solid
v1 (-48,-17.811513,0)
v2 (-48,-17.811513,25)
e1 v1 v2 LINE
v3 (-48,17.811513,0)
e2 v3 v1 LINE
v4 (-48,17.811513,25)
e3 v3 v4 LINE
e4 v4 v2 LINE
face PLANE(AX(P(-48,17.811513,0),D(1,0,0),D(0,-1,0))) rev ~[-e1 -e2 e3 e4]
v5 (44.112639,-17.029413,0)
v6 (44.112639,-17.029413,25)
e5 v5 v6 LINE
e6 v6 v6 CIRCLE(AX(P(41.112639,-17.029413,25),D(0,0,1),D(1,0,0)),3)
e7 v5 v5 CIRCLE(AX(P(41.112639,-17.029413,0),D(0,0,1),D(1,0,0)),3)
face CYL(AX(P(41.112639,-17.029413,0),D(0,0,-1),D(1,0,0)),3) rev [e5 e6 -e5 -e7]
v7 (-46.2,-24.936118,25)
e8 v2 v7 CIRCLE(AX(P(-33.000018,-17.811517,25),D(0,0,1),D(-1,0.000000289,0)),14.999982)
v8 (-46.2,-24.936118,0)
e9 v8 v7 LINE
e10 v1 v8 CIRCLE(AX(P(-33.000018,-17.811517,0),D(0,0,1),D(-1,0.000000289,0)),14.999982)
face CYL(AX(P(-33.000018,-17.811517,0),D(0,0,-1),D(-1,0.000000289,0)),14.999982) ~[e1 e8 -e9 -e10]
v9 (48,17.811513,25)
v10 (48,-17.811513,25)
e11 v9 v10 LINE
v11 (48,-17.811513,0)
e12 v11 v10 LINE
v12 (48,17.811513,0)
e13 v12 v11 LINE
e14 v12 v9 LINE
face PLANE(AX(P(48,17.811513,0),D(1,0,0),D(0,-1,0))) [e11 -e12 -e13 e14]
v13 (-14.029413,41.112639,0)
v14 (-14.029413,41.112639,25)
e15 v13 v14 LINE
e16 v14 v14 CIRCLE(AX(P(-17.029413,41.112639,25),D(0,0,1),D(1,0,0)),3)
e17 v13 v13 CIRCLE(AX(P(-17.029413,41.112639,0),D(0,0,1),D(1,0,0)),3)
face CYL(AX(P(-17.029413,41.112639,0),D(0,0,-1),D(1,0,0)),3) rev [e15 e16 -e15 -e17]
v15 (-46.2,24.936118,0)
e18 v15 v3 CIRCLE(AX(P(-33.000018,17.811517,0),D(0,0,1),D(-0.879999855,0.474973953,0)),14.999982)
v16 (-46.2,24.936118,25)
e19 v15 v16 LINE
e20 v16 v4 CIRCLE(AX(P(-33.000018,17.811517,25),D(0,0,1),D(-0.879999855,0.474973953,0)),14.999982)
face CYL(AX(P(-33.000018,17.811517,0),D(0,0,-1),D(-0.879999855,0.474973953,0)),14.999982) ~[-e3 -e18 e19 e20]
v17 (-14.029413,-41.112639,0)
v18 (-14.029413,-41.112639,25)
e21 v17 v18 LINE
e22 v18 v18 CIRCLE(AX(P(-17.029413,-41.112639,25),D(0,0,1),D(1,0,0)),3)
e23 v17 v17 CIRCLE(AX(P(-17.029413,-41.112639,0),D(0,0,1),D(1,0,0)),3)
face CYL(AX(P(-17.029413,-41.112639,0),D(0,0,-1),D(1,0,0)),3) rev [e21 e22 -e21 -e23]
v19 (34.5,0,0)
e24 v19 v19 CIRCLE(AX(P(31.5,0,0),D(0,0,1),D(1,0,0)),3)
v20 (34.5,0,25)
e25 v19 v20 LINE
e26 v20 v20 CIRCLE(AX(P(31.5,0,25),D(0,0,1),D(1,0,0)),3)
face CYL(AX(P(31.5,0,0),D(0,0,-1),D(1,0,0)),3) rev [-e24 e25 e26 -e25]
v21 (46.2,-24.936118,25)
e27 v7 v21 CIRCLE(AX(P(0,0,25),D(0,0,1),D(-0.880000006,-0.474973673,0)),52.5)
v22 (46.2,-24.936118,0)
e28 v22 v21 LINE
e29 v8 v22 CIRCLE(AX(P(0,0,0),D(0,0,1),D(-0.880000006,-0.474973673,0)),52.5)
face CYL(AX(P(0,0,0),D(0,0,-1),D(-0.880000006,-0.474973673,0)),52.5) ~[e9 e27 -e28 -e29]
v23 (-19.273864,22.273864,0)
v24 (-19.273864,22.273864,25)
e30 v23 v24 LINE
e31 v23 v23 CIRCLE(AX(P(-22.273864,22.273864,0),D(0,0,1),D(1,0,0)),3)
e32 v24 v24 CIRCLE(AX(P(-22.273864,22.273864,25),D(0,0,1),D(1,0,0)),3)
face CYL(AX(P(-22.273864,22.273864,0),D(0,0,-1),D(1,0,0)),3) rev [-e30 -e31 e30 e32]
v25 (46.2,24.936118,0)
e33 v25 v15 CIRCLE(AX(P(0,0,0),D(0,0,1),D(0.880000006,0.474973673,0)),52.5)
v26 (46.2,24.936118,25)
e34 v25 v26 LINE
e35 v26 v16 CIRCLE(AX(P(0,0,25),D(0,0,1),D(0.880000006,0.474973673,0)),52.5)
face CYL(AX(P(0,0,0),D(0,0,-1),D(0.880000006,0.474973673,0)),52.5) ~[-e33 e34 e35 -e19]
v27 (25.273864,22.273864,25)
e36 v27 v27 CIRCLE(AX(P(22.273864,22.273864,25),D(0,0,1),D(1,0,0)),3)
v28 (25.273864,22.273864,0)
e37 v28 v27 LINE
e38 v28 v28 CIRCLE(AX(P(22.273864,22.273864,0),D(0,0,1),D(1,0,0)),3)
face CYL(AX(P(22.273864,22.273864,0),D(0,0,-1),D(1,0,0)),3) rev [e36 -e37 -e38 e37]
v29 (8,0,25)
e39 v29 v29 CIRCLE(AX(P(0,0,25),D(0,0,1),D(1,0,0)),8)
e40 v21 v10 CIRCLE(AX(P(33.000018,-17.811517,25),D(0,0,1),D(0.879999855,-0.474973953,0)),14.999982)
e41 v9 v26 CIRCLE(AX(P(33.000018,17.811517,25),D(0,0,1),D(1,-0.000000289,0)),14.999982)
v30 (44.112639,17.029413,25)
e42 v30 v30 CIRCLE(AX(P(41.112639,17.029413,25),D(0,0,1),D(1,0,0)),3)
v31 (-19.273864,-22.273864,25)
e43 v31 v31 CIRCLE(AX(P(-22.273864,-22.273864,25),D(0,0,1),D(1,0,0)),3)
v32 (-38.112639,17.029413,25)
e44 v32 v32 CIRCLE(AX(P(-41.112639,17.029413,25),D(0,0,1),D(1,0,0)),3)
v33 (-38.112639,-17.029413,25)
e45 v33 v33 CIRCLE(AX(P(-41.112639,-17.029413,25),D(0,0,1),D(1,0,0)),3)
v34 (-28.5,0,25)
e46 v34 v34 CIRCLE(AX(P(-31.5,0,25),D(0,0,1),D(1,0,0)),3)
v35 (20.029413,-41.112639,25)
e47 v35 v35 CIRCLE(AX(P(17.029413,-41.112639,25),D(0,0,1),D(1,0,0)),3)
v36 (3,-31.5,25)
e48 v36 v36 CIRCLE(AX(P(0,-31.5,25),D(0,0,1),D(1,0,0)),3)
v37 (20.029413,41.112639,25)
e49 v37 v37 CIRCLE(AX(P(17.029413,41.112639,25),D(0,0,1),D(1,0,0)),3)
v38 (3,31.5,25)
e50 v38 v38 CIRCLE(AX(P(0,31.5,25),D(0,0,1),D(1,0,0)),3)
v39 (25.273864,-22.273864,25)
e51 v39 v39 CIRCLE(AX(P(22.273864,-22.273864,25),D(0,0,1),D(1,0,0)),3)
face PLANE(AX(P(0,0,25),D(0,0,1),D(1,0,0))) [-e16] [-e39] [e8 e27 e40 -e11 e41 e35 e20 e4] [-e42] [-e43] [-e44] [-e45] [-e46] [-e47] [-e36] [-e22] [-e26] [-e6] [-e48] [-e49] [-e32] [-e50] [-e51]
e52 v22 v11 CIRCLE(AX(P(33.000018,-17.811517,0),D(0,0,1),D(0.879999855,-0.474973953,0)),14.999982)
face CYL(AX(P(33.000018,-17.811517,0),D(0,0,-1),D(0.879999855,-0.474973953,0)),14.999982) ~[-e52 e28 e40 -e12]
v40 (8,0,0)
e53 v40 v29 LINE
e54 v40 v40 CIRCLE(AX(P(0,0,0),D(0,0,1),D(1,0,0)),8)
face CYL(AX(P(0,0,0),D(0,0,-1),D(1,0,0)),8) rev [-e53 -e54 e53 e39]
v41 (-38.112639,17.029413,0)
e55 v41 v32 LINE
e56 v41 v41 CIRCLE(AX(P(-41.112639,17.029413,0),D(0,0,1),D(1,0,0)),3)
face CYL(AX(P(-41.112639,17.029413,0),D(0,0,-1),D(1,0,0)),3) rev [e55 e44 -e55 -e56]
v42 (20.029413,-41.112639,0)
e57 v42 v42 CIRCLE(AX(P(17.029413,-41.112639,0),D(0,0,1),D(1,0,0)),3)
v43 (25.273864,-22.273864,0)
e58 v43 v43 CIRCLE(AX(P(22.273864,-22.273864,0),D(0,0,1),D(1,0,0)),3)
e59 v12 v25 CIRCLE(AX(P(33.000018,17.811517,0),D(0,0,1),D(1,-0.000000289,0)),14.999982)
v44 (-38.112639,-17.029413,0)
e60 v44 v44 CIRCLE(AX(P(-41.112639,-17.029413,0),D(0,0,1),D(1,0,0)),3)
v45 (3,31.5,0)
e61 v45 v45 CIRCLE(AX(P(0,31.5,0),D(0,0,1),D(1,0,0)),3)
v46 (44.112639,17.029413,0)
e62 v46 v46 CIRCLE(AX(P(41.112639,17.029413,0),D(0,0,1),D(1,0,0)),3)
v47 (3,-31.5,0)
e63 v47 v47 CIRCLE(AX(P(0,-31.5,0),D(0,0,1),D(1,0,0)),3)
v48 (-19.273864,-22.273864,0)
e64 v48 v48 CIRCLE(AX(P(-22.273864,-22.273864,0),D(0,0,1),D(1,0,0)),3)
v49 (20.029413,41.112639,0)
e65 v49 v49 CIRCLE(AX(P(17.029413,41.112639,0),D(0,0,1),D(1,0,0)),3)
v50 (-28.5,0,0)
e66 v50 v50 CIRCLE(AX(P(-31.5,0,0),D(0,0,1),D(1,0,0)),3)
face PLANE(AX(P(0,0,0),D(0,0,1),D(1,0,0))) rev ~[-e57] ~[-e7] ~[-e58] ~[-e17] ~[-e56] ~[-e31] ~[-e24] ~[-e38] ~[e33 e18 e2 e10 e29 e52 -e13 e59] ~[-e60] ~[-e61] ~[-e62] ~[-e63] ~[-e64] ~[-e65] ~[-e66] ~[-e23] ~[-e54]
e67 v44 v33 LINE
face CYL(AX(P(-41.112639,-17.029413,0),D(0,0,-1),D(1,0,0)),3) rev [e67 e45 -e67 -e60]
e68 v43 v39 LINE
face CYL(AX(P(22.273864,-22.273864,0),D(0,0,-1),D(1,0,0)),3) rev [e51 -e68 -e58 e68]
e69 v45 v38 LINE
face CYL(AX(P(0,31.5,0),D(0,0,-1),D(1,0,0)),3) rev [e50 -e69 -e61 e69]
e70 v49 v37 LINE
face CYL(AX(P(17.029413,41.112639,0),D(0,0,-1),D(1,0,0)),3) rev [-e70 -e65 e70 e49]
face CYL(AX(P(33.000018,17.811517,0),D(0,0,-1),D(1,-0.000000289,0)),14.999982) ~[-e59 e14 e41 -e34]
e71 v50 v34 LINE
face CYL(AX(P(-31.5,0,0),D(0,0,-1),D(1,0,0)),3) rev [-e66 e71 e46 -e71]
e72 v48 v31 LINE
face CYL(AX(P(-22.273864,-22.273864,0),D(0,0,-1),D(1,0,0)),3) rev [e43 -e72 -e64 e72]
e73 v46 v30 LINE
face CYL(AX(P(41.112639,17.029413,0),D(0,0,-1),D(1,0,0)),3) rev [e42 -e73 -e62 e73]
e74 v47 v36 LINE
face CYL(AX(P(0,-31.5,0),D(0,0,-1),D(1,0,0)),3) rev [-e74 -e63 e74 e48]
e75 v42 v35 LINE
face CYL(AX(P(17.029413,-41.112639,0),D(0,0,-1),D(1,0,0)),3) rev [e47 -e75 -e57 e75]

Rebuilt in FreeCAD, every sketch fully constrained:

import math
import FreeCAD as App
import Part
import Sketcher
from FreeCAD import Vector

doc = App.newDocument("Part")
body = doc.addObject("PartDesign::Body", "Body")

sketch1 = body.newObject("Sketcher::SketchObject", "Sketch")
sketch1.AttachmentSupport = (doc.getObject("XY_Plane"), [""])
sketch1.MapMode = "FlatFace"
sketch1.addGeometry(Part.ArcOfCircle(Part.Circle(Vector(0, 0, 0), Vector(0, 0, 1), 52.5), math.radians(-152), math.radians(-28)), False)
sketch1.addGeometry(Part.ArcOfCircle(Part.Circle(Vector(33, -17.8, 0), Vector(0, 0, 1), 15), math.radians(-28), math.radians(0)), False)
sketch1.addGeometry(Part.LineSegment(Vector(48, -17.8, 0), Vector(48, 17.8, 0)), False)
sketch1.addGeometry(Part.ArcOfCircle(Part.Circle(Vector(33, 17.8, 0), Vector(0, 0, 1), 15), math.radians(0), math.radians(28)), False)
sketch1.addGeometry(Part.ArcOfCircle(Part.Circle(Vector(0, 0, 0), Vector(0, 0, 1), 52.5), math.radians(28), math.radians(152)), False)
sketch1.addGeometry(Part.ArcOfCircle(Part.Circle(Vector(-33, 17.8, 0), Vector(0, 0, 1), 15), math.radians(152), math.radians(180)), False)
sketch1.addGeometry(Part.LineSegment(Vector(-48, 17.8, 0), Vector(-48, -17.8, 0)), False)
sketch1.addGeometry(Part.ArcOfCircle(Part.Circle(Vector(-33, -17.8, 0), Vector(0, 0, 1), 15), math.radians(180), math.radians(208)), False)
sketch1.addGeometry(Part.Circle(Vector(-22.3, -22.3, 0), Vector(0, 0, 1), 3), False)
sketch1.addGeometry(Part.Circle(Vector(-17, -41.1, 0), Vector(0, 0, 1), 3), False)
sketch1.addGeometry(Part.Circle(Vector(-41.1, -17, 0), Vector(0, 0, 1), 3), False)
sketch1.addGeometry(Part.Circle(Vector(17, -41.1, 0), Vector(0, 0, 1), 3), False)
sketch1.addGeometry(Part.Circle(Vector(0, -31.5, 0), Vector(0, 0, 1), 3), False)
sketch1.addGeometry(Part.Circle(Vector(22.3, -22.3, 0), Vector(0, 0, 1), 3), False)
sketch1.addGeometry(Part.Circle(Vector(41.1, -17, 0), Vector(0, 0, 1), 3), False)
sketch1.addGeometry(Part.Circle(Vector(-31.5, 0, 0), Vector(0, 0, 1), 3), False)
sketch1.addGeometry(Part.Circle(Vector(-41.1, 17, 0), Vector(0, 0, 1), 3), False)
sketch1.addGeometry(Part.Circle(Vector(-22.3, 22.3, 0), Vector(0, 0, 1), 3), False)
sketch1.addGeometry(Part.Circle(Vector(-17, 41.1, 0), Vector(0, 0, 1), 3), False)
sketch1.addGeometry(Part.Circle(Vector(0, 0, 0), Vector(0, 0, 1), 8), False)
sketch1.addGeometry(Part.Circle(Vector(31.5, 0, 0), Vector(0, 0, 1), 3), False)
sketch1.addGeometry(Part.Circle(Vector(41.1, 17, 0), Vector(0, 0, 1), 3), False)
sketch1.addGeometry(Part.Circle(Vector(0, 31.5, 0), Vector(0, 0, 1), 3), False)
sketch1.addGeometry(Part.Circle(Vector(17, 41.1, 0), Vector(0, 0, 1), 3), False)
sketch1.addGeometry(Part.Circle(Vector(22.3, 22.3, 0), Vector(0, 0, 1), 3), False)
sketch1.addConstraint(Sketcher.Constraint("Tangent", 0, 2, 1, 1))
sketch1.addConstraint(Sketcher.Constraint("Tangent", 1, 2, 2, 1))
sketch1.addConstraint(Sketcher.Constraint("Tangent", 2, 2, 3, 1))
sketch1.addConstraint(Sketcher.Constraint("Tangent", 3, 2, 4, 1))
sketch1.addConstraint(Sketcher.Constraint("Tangent", 4, 2, 5, 1))
sketch1.addConstraint(Sketcher.Constraint("Tangent", 5, 2, 6, 1))
sketch1.addConstraint(Sketcher.Constraint("Tangent", 6, 2, 7, 1))
sketch1.addConstraint(Sketcher.Constraint("Tangent", 7, 2, 0, 1))
sketch1.addConstraint(Sketcher.Constraint("Vertical", 2))
sketch1.addConstraint(Sketcher.Constraint("Vertical", 6))
sketch1.addConstraint(Sketcher.Constraint("Coincident", 0, 3, -1, 1))
sketch1.addConstraint(Sketcher.Constraint("Coincident", 4, 3, -1, 1))
sketch1.addConstraint(Sketcher.Constraint("Coincident", 19, 3, -1, 1))
sketch1.addConstraint(Sketcher.Constraint("Equal", 1, 3))
sketch1.addConstraint(Sketcher.Constraint("Equal", 0, 4))
sketch1.addConstraint(Sketcher.Constraint("Equal", 3, 5))
sketch1.addConstraint(Sketcher.Constraint("Equal", 5, 7))
sketch1.addConstraint(Sketcher.Constraint("Equal", 8, 9))
sketch1.addConstraint(Sketcher.Constraint("Equal", 9, 10))
sketch1.addConstraint(Sketcher.Constraint("Equal", 10, 11))
sketch1.addConstraint(Sketcher.Constraint("Equal", 11, 12))
sketch1.addConstraint(Sketcher.Constraint("Equal", 12, 13))
sketch1.addConstraint(Sketcher.Constraint("Equal", 13, 14))
sketch1.addConstraint(Sketcher.Constraint("Equal", 14, 15))
sketch1.addConstraint(Sketcher.Constraint("Equal", 15, 16))
sketch1.addConstraint(Sketcher.Constraint("Equal", 16, 17))
sketch1.addConstraint(Sketcher.Constraint("Equal", 17, 18))
sketch1.addConstraint(Sketcher.Constraint("Equal", 18, 20))
sketch1.addConstraint(Sketcher.Constraint("Equal", 20, 21))
sketch1.addConstraint(Sketcher.Constraint("Equal", 21, 22))
sketch1.addConstraint(Sketcher.Constraint("Equal", 22, 23))
sketch1.addConstraint(Sketcher.Constraint("Equal", 23, 24))
sketch1.addConstraint(Sketcher.Constraint("Symmetric", 14, 3, 16, 3, -1, 1))
sketch1.addConstraint(Sketcher.Constraint("Symmetric", 13, 3, 17, 3, -1, 1))
sketch1.addConstraint(Sketcher.Constraint("Symmetric", 11, 3, 18, 3, -1, 1))
sketch1.addConstraint(Sketcher.Constraint("Symmetric", 15, 3, 20, 3, -1, 1))
sketch1.addConstraint(Sketcher.Constraint("Symmetric", 10, 3, 21, 3, -1, 1))
sketch1.addConstraint(Sketcher.Constraint("Symmetric", 12, 3, 22, 3, -1, 1))
sketch1.addConstraint(Sketcher.Constraint("Symmetric", 9, 3, 23, 3, -1, 1))
sketch1.addConstraint(Sketcher.Constraint("Symmetric", 8, 3, 24, 3, -1, 1))
sketch1.addConstraint(Sketcher.Constraint("Symmetric", 9, 3, 11, 3, -2))
sketch1.addConstraint(Sketcher.Constraint("Symmetric", 8, 3, 13, 3, -2))
sketch1.addConstraint(Sketcher.Constraint("Symmetric", 10, 3, 14, 3, -2))
sketch1.addConstraint(Sketcher.Constraint("PointOnObject", 12, 3, -2))
sketch1.addConstraint(Sketcher.Constraint("PointOnObject", 15, 3, -1))
sketch1.addConstraint(Sketcher.Constraint("Horizontal", 3, 3, 5, 3))
sketch1.addConstraint(Sketcher.Constraint("Diameter", 8, 6.0))
sketch1.addConstraint(Sketcher.Constraint("Diameter", 19, 16.0))
sketch1.addConstraint(Sketcher.Constraint("Radius", 0, 52.5))
sketch1.addConstraint(Sketcher.Constraint("DistanceX", -1, 1, 1, 2, 48.0))
sketch1.addConstraint(Sketcher.Constraint("DistanceY", 12, 3, -1, 1, 31.5))
sketch1.addConstraint(Sketcher.Constraint("DistanceX", 15, 3, -1, 1, 31.5))
sketch1.addConstraint(Sketcher.Constraint("DistanceX", -1, 1, 0, 2, 46.2))
sketch1.addConstraint(Sketcher.Constraint("DistanceY", 1, 2, 14, 3, 0.7821))
sketch1.addConstraint(Sketcher.Constraint("DistanceY", 9, 3, -1, 1, 41.112639))
sketch1.addConstraint(Sketcher.Constraint("DistanceX", 10, 3, -1, 1, 41.112639))
sketch1.addConstraint(Sketcher.Constraint("DistanceY", 8, 3, 5, 3, 40.085381))
sketch1.addConstraint(Sketcher.Constraint("DistanceX", 8, 3, 9, 3, 5.244451))
sketch1.addConstraint(Sketcher.Constraint("DistanceX", 9, 3, 1, 3, 50.029431))
pad1 = body.newObject("PartDesign::Pad", "Pad")
pad1.Profile = sketch1
pad1.Length = 25

doc.recompute()
